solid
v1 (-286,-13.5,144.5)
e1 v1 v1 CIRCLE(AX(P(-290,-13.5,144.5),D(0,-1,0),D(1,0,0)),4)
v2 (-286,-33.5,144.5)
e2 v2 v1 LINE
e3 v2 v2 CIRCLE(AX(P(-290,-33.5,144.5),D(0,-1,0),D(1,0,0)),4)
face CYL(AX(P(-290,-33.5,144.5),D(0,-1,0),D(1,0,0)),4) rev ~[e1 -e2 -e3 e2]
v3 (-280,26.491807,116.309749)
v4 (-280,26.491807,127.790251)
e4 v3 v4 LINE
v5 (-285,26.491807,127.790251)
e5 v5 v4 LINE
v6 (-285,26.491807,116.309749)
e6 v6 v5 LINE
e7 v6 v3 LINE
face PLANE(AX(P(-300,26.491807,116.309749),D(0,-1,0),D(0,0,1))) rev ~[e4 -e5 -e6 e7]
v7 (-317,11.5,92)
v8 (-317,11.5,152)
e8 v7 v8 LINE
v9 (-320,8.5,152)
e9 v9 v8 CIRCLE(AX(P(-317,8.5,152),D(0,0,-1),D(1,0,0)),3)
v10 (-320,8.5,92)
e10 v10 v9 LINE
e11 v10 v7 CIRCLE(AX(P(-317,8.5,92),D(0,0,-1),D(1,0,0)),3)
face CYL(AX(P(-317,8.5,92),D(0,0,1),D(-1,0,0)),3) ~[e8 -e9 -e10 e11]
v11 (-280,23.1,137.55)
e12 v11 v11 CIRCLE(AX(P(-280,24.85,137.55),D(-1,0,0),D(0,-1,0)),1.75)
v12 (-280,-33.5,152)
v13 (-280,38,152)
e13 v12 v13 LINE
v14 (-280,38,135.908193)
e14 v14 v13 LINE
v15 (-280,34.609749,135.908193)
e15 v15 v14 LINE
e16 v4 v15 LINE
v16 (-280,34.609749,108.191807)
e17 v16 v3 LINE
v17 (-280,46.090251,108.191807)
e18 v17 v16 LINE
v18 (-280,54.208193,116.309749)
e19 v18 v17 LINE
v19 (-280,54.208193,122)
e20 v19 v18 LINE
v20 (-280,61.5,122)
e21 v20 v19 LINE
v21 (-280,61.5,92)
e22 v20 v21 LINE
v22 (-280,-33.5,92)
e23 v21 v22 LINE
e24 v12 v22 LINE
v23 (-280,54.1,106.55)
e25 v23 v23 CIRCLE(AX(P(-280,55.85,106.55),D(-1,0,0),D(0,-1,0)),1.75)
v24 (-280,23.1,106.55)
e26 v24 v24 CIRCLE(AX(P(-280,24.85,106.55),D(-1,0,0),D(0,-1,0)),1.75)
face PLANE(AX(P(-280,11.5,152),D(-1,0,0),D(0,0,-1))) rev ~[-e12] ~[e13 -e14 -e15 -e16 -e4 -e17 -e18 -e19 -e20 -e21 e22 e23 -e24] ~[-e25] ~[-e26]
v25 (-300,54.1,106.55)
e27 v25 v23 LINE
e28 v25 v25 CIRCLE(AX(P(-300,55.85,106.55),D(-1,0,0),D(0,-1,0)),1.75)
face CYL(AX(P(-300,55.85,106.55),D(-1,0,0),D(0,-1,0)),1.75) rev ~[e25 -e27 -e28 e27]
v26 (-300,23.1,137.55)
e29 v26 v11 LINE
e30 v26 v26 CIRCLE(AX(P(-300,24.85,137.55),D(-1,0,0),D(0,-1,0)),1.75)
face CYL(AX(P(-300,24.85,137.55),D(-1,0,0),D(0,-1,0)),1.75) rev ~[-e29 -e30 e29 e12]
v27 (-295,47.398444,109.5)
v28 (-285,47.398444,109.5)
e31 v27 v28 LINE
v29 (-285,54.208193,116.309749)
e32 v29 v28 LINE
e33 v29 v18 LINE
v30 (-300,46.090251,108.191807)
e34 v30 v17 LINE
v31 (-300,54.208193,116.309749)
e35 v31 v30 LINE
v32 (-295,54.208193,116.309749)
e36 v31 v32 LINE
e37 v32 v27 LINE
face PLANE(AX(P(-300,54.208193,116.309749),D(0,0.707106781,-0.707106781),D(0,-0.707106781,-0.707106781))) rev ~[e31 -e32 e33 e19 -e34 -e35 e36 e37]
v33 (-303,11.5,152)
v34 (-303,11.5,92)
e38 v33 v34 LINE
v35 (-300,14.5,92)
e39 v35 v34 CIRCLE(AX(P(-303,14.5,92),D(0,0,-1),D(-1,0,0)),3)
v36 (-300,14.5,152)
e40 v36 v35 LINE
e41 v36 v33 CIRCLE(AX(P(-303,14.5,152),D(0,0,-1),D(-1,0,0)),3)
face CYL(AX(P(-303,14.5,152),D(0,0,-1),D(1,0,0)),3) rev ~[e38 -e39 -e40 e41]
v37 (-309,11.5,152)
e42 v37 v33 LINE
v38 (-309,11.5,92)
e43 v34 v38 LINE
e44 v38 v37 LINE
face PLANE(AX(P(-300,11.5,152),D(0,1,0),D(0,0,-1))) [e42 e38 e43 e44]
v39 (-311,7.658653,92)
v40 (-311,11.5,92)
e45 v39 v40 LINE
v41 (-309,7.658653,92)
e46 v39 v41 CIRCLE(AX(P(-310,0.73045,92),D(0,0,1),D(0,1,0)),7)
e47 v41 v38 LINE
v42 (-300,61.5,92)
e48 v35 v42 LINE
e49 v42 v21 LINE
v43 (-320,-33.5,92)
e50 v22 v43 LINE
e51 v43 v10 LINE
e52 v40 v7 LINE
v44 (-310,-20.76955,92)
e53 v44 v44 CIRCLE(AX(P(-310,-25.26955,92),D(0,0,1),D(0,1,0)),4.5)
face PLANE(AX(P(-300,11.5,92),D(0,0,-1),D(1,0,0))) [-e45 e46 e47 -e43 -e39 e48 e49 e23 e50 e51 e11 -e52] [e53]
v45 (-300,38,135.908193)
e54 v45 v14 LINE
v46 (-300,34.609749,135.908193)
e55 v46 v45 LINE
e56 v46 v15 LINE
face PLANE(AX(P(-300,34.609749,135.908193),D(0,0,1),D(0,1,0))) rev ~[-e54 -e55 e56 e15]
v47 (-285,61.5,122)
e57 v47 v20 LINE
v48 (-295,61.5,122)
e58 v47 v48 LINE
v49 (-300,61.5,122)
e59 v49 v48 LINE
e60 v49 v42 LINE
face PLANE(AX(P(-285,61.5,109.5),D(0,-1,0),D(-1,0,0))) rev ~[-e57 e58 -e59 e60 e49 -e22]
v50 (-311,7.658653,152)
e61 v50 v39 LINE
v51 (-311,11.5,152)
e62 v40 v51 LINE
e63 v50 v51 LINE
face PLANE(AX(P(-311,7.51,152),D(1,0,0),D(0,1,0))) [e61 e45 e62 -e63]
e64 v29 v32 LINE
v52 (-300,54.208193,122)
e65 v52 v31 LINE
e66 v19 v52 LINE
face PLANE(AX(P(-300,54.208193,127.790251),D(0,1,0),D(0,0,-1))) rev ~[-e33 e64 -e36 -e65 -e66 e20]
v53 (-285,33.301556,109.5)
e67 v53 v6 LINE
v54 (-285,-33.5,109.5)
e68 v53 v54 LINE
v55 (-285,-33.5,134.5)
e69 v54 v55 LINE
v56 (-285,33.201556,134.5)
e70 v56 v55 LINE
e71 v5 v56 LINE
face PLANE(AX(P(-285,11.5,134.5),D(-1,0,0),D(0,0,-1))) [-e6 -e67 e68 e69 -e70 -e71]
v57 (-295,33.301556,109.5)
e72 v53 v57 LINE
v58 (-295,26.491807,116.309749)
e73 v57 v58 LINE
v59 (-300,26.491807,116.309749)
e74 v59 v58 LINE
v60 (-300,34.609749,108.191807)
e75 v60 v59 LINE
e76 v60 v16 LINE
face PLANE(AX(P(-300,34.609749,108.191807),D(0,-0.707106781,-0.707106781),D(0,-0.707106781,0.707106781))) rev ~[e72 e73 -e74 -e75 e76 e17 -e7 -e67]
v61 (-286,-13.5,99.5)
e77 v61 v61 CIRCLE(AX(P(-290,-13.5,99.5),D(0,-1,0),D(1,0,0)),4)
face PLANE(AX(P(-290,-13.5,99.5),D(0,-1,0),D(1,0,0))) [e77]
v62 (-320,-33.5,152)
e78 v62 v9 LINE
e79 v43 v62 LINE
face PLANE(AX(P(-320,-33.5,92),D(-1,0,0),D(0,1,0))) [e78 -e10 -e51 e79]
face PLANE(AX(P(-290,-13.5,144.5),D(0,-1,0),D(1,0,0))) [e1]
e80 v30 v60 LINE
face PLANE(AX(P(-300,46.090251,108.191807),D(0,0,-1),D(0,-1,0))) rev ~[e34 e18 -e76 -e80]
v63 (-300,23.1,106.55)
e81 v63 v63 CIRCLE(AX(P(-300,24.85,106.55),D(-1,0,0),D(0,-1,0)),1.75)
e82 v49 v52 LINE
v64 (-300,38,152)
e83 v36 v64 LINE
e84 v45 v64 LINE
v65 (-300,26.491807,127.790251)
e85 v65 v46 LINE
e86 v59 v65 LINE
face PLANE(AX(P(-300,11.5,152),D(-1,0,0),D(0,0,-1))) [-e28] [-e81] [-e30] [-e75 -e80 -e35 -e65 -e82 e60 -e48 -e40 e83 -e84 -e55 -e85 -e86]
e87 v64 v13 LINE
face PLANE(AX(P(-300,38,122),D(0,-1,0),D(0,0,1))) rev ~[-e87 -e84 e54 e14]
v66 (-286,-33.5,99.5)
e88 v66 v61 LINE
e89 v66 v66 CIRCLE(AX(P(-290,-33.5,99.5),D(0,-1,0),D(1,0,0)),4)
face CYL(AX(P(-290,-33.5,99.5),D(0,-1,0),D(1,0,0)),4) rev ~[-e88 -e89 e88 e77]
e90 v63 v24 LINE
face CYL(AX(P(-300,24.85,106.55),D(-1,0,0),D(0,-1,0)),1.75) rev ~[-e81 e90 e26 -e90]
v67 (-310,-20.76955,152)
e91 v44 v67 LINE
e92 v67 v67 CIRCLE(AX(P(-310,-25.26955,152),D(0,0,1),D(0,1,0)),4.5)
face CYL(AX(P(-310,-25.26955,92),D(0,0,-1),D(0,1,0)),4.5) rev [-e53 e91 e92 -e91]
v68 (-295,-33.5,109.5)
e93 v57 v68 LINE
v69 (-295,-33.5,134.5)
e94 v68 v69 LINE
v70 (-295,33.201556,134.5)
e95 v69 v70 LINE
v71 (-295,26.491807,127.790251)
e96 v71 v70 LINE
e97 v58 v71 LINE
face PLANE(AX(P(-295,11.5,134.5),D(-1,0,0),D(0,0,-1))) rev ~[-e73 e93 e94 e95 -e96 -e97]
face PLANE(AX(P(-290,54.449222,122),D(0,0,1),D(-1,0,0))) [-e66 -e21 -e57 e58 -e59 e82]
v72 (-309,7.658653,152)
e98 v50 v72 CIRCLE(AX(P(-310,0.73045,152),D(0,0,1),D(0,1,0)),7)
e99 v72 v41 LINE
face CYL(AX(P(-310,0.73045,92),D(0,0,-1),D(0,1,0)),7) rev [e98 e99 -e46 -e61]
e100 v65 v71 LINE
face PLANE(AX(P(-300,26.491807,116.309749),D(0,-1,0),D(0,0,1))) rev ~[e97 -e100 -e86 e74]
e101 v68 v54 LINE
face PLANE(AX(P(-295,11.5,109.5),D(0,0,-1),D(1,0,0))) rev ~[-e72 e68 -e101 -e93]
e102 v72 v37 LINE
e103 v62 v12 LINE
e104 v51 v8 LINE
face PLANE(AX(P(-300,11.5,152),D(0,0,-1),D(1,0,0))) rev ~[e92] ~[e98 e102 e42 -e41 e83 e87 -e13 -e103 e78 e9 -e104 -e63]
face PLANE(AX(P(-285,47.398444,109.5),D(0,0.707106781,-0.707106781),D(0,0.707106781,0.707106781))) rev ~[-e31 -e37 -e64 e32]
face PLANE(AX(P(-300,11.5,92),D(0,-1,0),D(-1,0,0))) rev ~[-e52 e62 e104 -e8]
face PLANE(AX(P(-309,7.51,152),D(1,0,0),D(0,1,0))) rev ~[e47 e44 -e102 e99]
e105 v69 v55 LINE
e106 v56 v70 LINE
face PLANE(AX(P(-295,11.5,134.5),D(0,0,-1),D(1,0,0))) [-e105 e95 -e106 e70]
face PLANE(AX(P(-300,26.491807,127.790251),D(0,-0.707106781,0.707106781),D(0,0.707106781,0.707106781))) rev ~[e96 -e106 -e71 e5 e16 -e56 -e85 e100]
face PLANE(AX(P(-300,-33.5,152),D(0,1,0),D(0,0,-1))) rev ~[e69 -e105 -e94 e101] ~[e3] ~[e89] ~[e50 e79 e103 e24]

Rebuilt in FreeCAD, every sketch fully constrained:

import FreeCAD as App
import Part
import Sketcher
from FreeCAD import Vector
Q = App.Units.Quantity


def edges_at(feature, points):
    """Names of the edges that pass closest to the given points."""
    edges = feature.Shape.Edges
    near = lambda p: min(range(len(edges)), key=lambda i: edges[i].distToShape(Part.Vertex(*p))[0])
    return sorted({f"Edge{near(p) + 1}" for p in points})


def add_polygon(sketch, points):
    """Adds a closed chain of lines whose ends are joined by coincident constraints."""
    first, n = sketch.GeometryCount, len(points)
    for a, b in zip(points, points[1:] + points[:1]):
        sketch.addGeometry(Part.LineSegment(App.Vector(*a, 0), App.Vector(*b, 0)), False)
    for i in range(n):
        sketch.addConstraint(Sketcher.Constraint("Coincident", first + i, 2, first + (i + 1) % n, 1))

doc = App.newDocument("Part")
params = doc.addObject("Spreadsheet::Sheet", "Params")
for row, (alias, value) in enumerate([
    ("sketch1_diameter", "9 mm"),
    ("sketch1_diameter2", "14 mm"),
    ("sketch1_width", "45 mm"),
    ("sketch1_height", "20 mm"),
    ("pad1_length", "60 mm"),
    ("sketch2_width", "4 mm"),
    ("sketch2_height", "2 mm"),
    ("sketch3_width", "45 mm"),
    ("sketch3_height", "60 mm"),
    ("pad2_length", "20 mm"),
    ("sketch4_width", "10 mm"),
    ("sketch4_height", "25 mm"),
    ("pocket2_length", "47 mm"),
    ("sketch5_diameter", "8 mm"),
    ("pocket3_length", "20 mm"),
    ("sketch6_width", "20 mm"),
    ("sketch6_width2", "10 mm"),
    ("sketch6_height", "60 mm"),
    ("sketch6_height2", "25 mm"),
    ("pad3_length", "50 mm"),
    ("fillet_radius", "3 mm"),
    ("fillet2_radius", "3 mm"),
    ("sketch7_diameter", "3.5 mm"),
    ("sketch8_height", "30 mm"),
    ("sketch8_width", "23.5 mm"),
    ("sketch9_height", "10 mm"),
    ("pad4_length", "12.5 mm"),
    ("sketch10_height", "12.5 mm"),
], start=1):
    params.set(f"A{row}", alias)
    params.set(f"B{row}", "=" + value)
    params.setAlias(f"B{row}", alias)

body = doc.addObject("PartDesign::Body", "Body")

sketch1 = body.newObject("Sketcher::SketchObject", "Sketch")
sketch1.AttachmentSupport = (doc.getObject("XY_Plane"), [""])
sketch1.MapMode = "FlatFace"
add_polygon(sketch1, [(-22.5, 10), (-22.5, -10), (22.5, -10), (22.5, 10)])
sketch1.addGeometry(Part.Circle(Vector(-14.26955, 0, 0), Vector(0, 0, 1), 4.5), False)
sketch1.addGeometry(Part.Circle(Vector(11.73045, 0, 0), Vector(0, 0, 1), 7), False)
sketch1.addConstraint(Sketcher.Constraint("Vertical", 0))
sketch1.addConstraint(Sketcher.Constraint("Horizontal", 1))
sketch1.addConstraint(Sketcher.Constraint("Vertical", 2))
sketch1.addConstraint(Sketcher.Constraint("Horizontal", 3))
sketch1.addConstraint(Sketcher.Constraint("Symmetric", 0, 2, 2, 2, -1, 1))
sketch1.addConstraint(Sketcher.Constraint("PointOnObject", 4, 3, -1))
sketch1.addConstraint(Sketcher.Constraint("PointOnObject", 5, 3, -1))
sketch1.addConstraint(Sketcher.Constraint("Diameter", 4, 9.0))
sketch1.addConstraint(Sketcher.Constraint("Diameter", 5, 14.0))
sketch1.addConstraint(Sketcher.Constraint("DistanceX", 1, 1, 1, 2, 45.0))
sketch1.addConstraint(Sketcher.Constraint("DistanceY", 0, 2, 0, 1, 20.0))
sketch1.addConstraint(Sketcher.Constraint("DistanceX", 4, 3, 5, 3, 26.0))
sketch1.addConstraint(Sketcher.Constraint("DistanceX", 4, 3, -1, 1, 14.26955))
sketch1.setExpression("Constraints[11]", "Params.sketch1_diameter")
sketch1.setExpression("Constraints[12]", "Params.sketch1_diameter2")
sketch1.setExpression("Constraints[13]", "Params.sketch1_width")
sketch1.setExpression("Constraints[14]", "Params.sketch1_height")
pad1 = body.newObject("PartDesign::Pad", "Pad")
pad1.Profile = sketch1
pad1.setExpression("Length", "Params.pad1_length")

sketch2 = body.newObject("Sketcher::SketchObject", "Sketch001")
sketch2.AttachmentSupport = (doc.getObject("XY_Plane"), [""])
sketch2.MapMode = "FlatFace"
sketch2.AttachmentOffset = App.Placement(Vector(0, 0, 60), App.Rotation())
add_polygon(sketch2, [(18.51, 1), (18.51, -1), (22.51, -1), (22.51, 1)])
sketch2.addConstraint(Sketcher.Constraint("Vertical", 0))
sketch2.addConstraint(Sketcher.Constraint("Horizontal", 1))
sketch2.addConstraint(Sketcher.Constraint("Vertical", 2))
sketch2.addConstraint(Sketcher.Constraint("Horizontal", 3))
sketch2.addConstraint(Sketcher.Constraint("DistanceX", 1, 1, 1, 2, 4.0))
sketch2.addConstraint(Sketcher.Constraint("DistanceY", 0, 2, 0, 1, 2.0))
sketch2.addConstraint(Sketcher.Constraint("DistanceY", 0, 2, -1, 1, 1.0))
sketch2.addConstraint(Sketcher.Constraint("DistanceX", -1, 1, 0, 2, 18.51))
sketch2.setExpression("Constraints[8]", "Params.sketch2_width")
sketch2.setExpression("Constraints[9]", "Params.sketch2_height")
pocket1 = body.newObject("PartDesign::Pocket", "Pocket")
pocket1.Profile = sketch2
pocket1.Type = "ThroughAll"

sketch3 = body.newObject("Sketcher::SketchObject", "Sketch002")
sketch3.AttachmentSupport = (doc.getObject("XZ_Plane"), [""])
sketch3.MapMode = "FlatFace"
sketch3.AttachmentOffset = App.Placement(Vector(0, 0, 10), App.Rotation())
add_polygon(sketch3, [(22.5, 0), (22.5, 60), (-22.5, 60), (-22.5, 0)])
sketch3.addConstraint(Sketcher.Constraint("Vertical", 0))
sketch3.addConstraint(Sketcher.Constraint("Horizontal", 1))
sketch3.addConstraint(Sketcher.Constraint("Vertical", 2))
sketch3.addConstraint(Sketcher.Constraint("Horizontal", 3))
sketch3.addConstraint(Sketcher.Constraint("Symmetric", 2, 2, 3, 2, -1, 1))
sketch3.addConstraint(Sketcher.Constraint("DistanceX", 1, 2, 1, 1, 45.0))
sketch3.addConstraint(Sketcher.Constraint("DistanceY", 0, 1, 0, 2, 60.0))
sketch3.setExpression("Constraints[9]", "Params.sketch3_width")
sketch3.setExpression("Constraints[10]", "Params.sketch3_height")
pad2 = body.newObject("PartDesign::Pad", "Pad001")
pad2.Profile = sketch3
pad2.setExpression("Length", "Params.pad2_length")

sketch4 = body.newObject("Sketcher::SketchObject", "Sketch003")
sketch4.AttachmentSupport = (doc.getObject("YZ_Plane"), [""])
sketch4.MapMode = "FlatFace"
sketch4.AttachmentOffset = App.Placement(Vector(0, 0, -22.5), App.Rotation())
add_polygon(sketch4, [(-15, 42.5), (-15, 17.5), (-25, 17.5), (-25, 42.5)])
sketch4.addConstraint(Sketcher.Constraint("Vertical", 0))
sketch4.addConstraint(Sketcher.Constraint("Horizontal", 1))
sketch4.addConstraint(Sketcher.Constraint("Vertical", 2))
sketch4.addConstraint(Sketcher.Constraint("Horizontal", 3))
sketch4.addConstraint(Sketcher.Constraint("DistanceX", 1, 2, 1, 1, 10.0))
sketch4.addConstraint(Sketcher.Constraint("DistanceY", 0, 2, 0, 1, 25.0))
sketch4.addConstraint(Sketcher.Constraint("DistanceX", 0, 2, -1, 1, 15.0))
sketch4.addConstraint(Sketcher.Constraint("DistanceY", -1, 1, 0, 2, 17.5))
sketch4.setExpression("Constraints[8]", "Params.sketch4_width")
sketch4.setExpression("Constraints[9]", "Params.sketch4_height")
pocket2 = body.newObject("PartDesign::Pocket", "Pocket001")
pocket2.Profile = sketch4
pocket2.setExpression("Length", "Params.pocket2_length")
pocket2.Reversed = True

sketch5 = body.newObject("Sketcher::SketchObject", "Sketch004")
sketch5.AttachmentSupport = (doc.getObject("YZ_Plane"), [""])
sketch5.MapMode = "FlatFace"
sketch5.AttachmentOffset = App.Placement(Vector(0, 0, -22.5), App.Rotation())
sketch5.addGeometry(Part.Circle(Vector(-20, 52.5, 0), Vector(0, 0, 1), 4), False)
sketch5.addGeometry(Part.Circle(Vector(-20, 7.5, 0), Vector(0, 0, 1), 4), False)
sketch5.addConstraint(Sketcher.Constraint("Equal", 0, 1))
sketch5.addConstraint(Sketcher.Constraint("Vertical", 0, 3, 1, 3))
sketch5.addConstraint(Sketcher.Constraint("Diameter", 0, 8.0))
sketch5.addConstraint(Sketcher.Constraint("DistanceX", 0, 3, -1, 1, 20.0))
sketch5.addConstraint(Sketcher.Constraint("DistanceY", 1, 3, 0, 3, 45.0))
sketch5.addConstraint(Sketcher.Constraint("DistanceY", -1, 1, 0, 3, 52.5))
sketch5.setExpression("Constraints[2]", "Params.sketch5_diameter")
pocket3 = body.newObject("PartDesign::Pocket", "Pocket002")
pocket3.Profile = sketch5
pocket3.setExpression("Length", "Params.pocket3_length")
pocket3.Reversed = True

sketch6 = body.newObject("Sketcher::SketchObject", "Sketch005")
sketch6.AttachmentSupport = (doc.getObject("YZ_Plane"), [""])
sketch6.MapMode = "FlatFace"
sketch6.AttachmentOffset = App.Placement(Vector(0, 0, 22.5), App.Rotation())
add_polygon(sketch6, [(-10, 0), (-10, 60), (-30, 60), (-30, 0)])
add_polygon(sketch6, [(-25, 42.5), (-15, 42.5), (-15, 17.5), (-25, 17.5)])
sketch6.addConstraint(Sketcher.Constraint("Vertical", 0))
sketch6.addConstraint(Sketcher.Constraint("Horizontal", 1))
sketch6.addConstraint(Sketcher.Constraint("Vertical", 2))
sketch6.addConstraint(Sketcher.Constraint("Horizontal", 3))
sketch6.addConstraint(Sketcher.Constraint("Horizontal", 4))
sketch6.addConstraint(Sketcher.Constraint("Vertical", 5))
sketch6.addConstraint(Sketcher.Constraint("Horizontal", 6))
sketch6.addConstraint(Sketcher.Constraint("Vertical", 7))
sketch6.addConstraint(Sketcher.Constraint("PointOnObject", 2, 2, -1))
sketch6.addConstraint(Sketcher.Constraint("DistanceX", 1, 2, 1, 1, 20.0))
sketch6.addConstraint(Sketcher.Constraint("DistanceX", 4, 1, 4, 2, 10.0))
sketch6.addConstraint(Sketcher.Constraint("DistanceY", 0, 1, 0, 2, 60.0))
sketch6.addConstraint(Sketcher.Constraint("DistanceY", 5, 2, 5, 1, 25.0))
sketch6.addConstraint(Sketcher.Constraint("DistanceX", 0, 2, -1, 1, 10.0))
sketch6.addConstraint(Sketcher.Constraint("DistanceX", 4, 2, -1, 1, 15.0))
sketch6.addConstraint(Sketcher.Constraint("DistanceY", -1, 1, 4, 2, 42.5))
sketch6.setExpression("Constraints[17]", "Params.sketch6_width")
sketch6.setExpression("Constraints[18]", "Params.sketch6_width2")
sketch6.setExpression("Constraints[19]", "Params.sketch6_height")
sketch6.setExpression("Constraints[20]", "Params.sketch6_height2")
pad3 = body.newObject("PartDesign::Pad", "Pad002")
pad3.Profile = sketch6
pad3.setExpression("Length", "Params.pad3_length")
doc.recompute()

fillet = body.newObject("PartDesign::Fillet", "Fillet")
fillet.Base = (pad3, edges_at(pad3, [(22.5, -10, 30)]))
fillet.setExpression("Radius", "Params.fillet_radius")
doc.recompute()

fillet2 = body.newObject("PartDesign::Fillet", "Fillet001")
fillet2.Base = (fillet, edges_at(fillet, [(22.5, 10, 30)]))
fillet2.setExpression("Radius", "Params.fillet2_radius")

sketch7 = body.newObject("Sketcher::SketchObject", "Sketch006")
sketch7.AttachmentSupport = (doc.getObject("XZ_Plane"), [""])
sketch7.MapMode = "FlatFace"
sketch7.AttachmentOffset = App.Placement(Vector(0, 0, 10), App.Rotation())
sketch7.addGeometry(Part.Circle(Vector(35.85, 45.55, 0), Vector(0, 0, 1), 1.75), False)
sketch7.addGeometry(Part.Circle(Vector(66.85, 45.55, 0), Vector(0, 0, 1), 1.75), False)
sketch7.addGeometry(Part.Circle(Vector(66.85, 14.55, 0), Vector(0, 0, 1), 1.75), False)
sketch7.addGeometry(Part.Circle(Vector(35.85, 14.55, 0), Vector(0, 0, 1), 1.75), False)
add_polygon(sketch7, [(37.491807, 35.790251), (45.609749, 43.908193), (57.090251, 43.908193), (65.208193, 35.790251), (65.208193, 24.309749), (57.090251, 16.191807), (45.609749, 16.191807), (37.491807, 24.309749)])
sketch7.addConstraint(Sketcher.Constraint("Horizontal", 5))
sketch7.addConstraint(Sketcher.Constraint("Vertical", 7))
sketch7.addConstraint(Sketcher.Constraint("Horizontal", 9))
sketch7.addConstraint(Sketcher.Constraint("Vertical", 11))
sketch7.addConstraint(Sketcher.Constraint("Equal", 0, 1))
sketch7.addConstraint(Sketcher.Constraint("Equal", 1, 2))
sketch7.addConstraint(Sketcher.Constraint("Equal", 2, 3))
sketch7.addConstraint(Sketcher.Constraint("Perpendicular", 4, 6))
sketch7.addConstraint(Sketcher.Constraint("Perpendicular", 6, 8))
sketch7.addConstraint(Sketcher.Constraint("Perpendicular", 8, 10))
sketch7.addConstraint(Sketcher.Constraint("Horizontal", 0, 3, 1, 3))
sketch7.addConstraint(Sketcher.Constraint("Horizontal", 2, 3, 3, 3))
sketch7.addConstraint(Sketcher.Constraint("Horizontal", 7, 2, 10, 2))
sketch7.addConstraint(Sketcher.Constraint("Horizontal", 6, 2, 11, 2))
sketch7.addConstraint(Sketcher.Constraint("Vertical", 1, 3, 2, 3))
sketch7.addConstraint(Sketcher.Constraint("Vertical", 0, 3, 3, 3))
sketch7.addConstraint(Sketcher.Constraint("Vertical", 5, 2, 8, 2))
sketch7.addConstraint(Sketcher.Constraint("Vertical", 4, 2, 9, 2))
sketch7.addConstraint(Sketcher.Constraint("Equal", 9, 7))
sketch7.addConstraint(Sketcher.Constraint("Diameter", 0, 3.5))
sketch7.addConstraint(Sketcher.Constraint("DistanceX", 0, 3, 1, 3, 31.0))
sketch7.addConstraint(Sketcher.Constraint("DistanceY", 2, 3, 1, 3, 31.0))
sketch7.addConstraint(Sketcher.Constraint("DistanceX", -1, 1, 0, 3, 35.85))
sketch7.addConstraint(Sketcher.Constraint("DistanceY", -1, 1, 0, 3, 45.55))
sketch7.addConstraint(Sketcher.Constraint("DistanceX", 5, 1, 5, 2, 11.480503))
sketch7.addConstraint(Sketcher.Constraint("DistanceX", -1, 1, 4, 2, 45.609749))
sketch7.addConstraint(Sketcher.Constraint("DistanceY", -1, 1, 6, 2, 35.790251))
sketch7.addConstraint(Sketcher.Constraint("DistanceX", 5, 2, 6, 2, 8.117942))
sketch7.setExpression("Constraints[27]", "Params.sketch7_diameter")
pocket4 = body.newObject("PartDesign::Pocket", "Pocket003")
pocket4.Profile = sketch7
pocket4.Type = "ThroughAll"
pocket4.Reversed = True

sketch8 = body.newObject("Sketcher::SketchObject", "Sketch007")
sketch8.AttachmentSupport = (doc.getObject("XZ_Plane"), [""])
sketch8.MapMode = "FlatFace"
sketch8.AttachmentOffset = App.Placement(Vector(0, 0, 10), App.Rotation())
add_polygon(sketch8, [(72.5, 60), (72.5, 30), (49, 30), (49, 60)])
sketch8.addConstraint(Sketcher.Constraint("Vertical", 0))
sketch8.addConstraint(Sketcher.Constraint("Horizontal", 1))
sketch8.addConstraint(Sketcher.Constraint("Vertical", 2))
sketch8.addConstraint(Sketcher.Constraint("Horizontal", 3))
sketch8.addConstraint(Sketcher.Constraint("DistanceY", 0, 2, 0, 1, 30.0))
sketch8.addConstraint(Sketcher.Constraint("DistanceX", 1, 2, 1, 1, 23.5))
sketch8.addConstraint(Sketcher.Constraint("DistanceY", -1, 1, 0, 2, 30.0))
sketch8.addConstraint(Sketcher.Constraint("DistanceX", -1, 1, 1, 2, 49.0))
sketch8.setExpression("Constraints[8]", "Params.sketch8_height")
sketch8.setExpression("Constraints[9]", "Params.sketch8_width")
pocket5 = body.newObject("PartDesign::Pocket", "Pocket004")
pocket5.Profile = sketch8
pocket5.Type = "ThroughAll"
pocket5.Reversed = True

sketch9 = body.newObject("Sketcher::SketchObject", "Sketch008")
sketch9.AttachmentSupport = (doc.getObject("XY_Plane"), [""])
sketch9.MapMode = "FlatFace"
sketch9.AttachmentOffset = App.Placement(Vector(0, 0, 17.5), App.Rotation())
add_polygon(sketch9, [(58.398444, -25), (72.5, -25), (72.5, -15), (58.398444, -15)])
sketch9.addConstraint(Sketcher.Constraint("Horizontal", 0))
sketch9.addConstraint(Sketcher.Constraint("Vertical", 1))
sketch9.addConstraint(Sketcher.Constraint("Horizontal", 2))
sketch9.addConstraint(Sketcher.Constraint("Vertical", 3))
sketch9.addConstraint(Sketcher.Constraint("DistanceY", 1, 1, 1, 2, 10.0))
sketch9.addConstraint(Sketcher.Constraint("DistanceY", 0, 2, -1, 1, 25.0))
sketch9.addConstraint(Sketcher.Constraint("DistanceX", -1, 1, 0, 2, 72.5))
sketch9.addConstraint(Sketcher.Constraint("DistanceX", 0, 1, 0, 2, 14.101556))
sketch9.setExpression("Constraints[8]", "Params.sketch9_height")
pad4 = body.newObject("PartDesign::Pad", "Pad003")
pad4.Profile = sketch9
pad4.setExpression("Length", "Params.pad4_length")

sketch10 = body.newObject("Sketcher::SketchObject", "Sketch009")
sketch10.AttachmentSupport = (doc.getObject("XZ_Plane"), [""])
sketch10.MapMode = "FlatFace"
sketch10.AttachmentOffset = App.Placement(Vector(0, 0, 25), App.Rotation())
add_polygon(sketch10, [(58.398444, 17.5), (65.208193, 24.309749), (65.208193, 30), (58.398444, 30)])
sketch10.addConstraint(Sketcher.Constraint("Vertical", 1))
sketch10.addConstraint(Sketcher.Constraint("Horizontal", 2))
sketch10.addConstraint(Sketcher.Constraint("Vertical", 3))
sketch10.addConstraint(Sketcher.Constraint("Angle", 0, Q("45 deg")))
sketch10.addConstraint(Sketcher.Constraint("DistanceY", 3, 2, 3, 1, 12.5))
sketch10.addConstraint(Sketcher.Constraint("DistanceY", -1, 1, 1, 2, 30.0))
sketch10.addConstraint(Sketcher.Constraint("DistanceX", 2, 2, 2, 1, 6.809749))
sketch10.addConstraint(Sketcher.Constraint("DistanceX", -1, 1, 0, 2, 65.208193))
sketch10.setExpression("Constraints[8]", "Params.sketch10_height")
pocket6 = body.newObject("PartDesign::Pocket", "Pocket005")
pocket6.Profile = sketch10
pocket6.Type = "ThroughAll"
body2 = doc.addObject("PartDesign::Body", "Body001")
doc.recompute()

body.Placement = App.Placement(Vector(-73, 0, 0), App.Rotation(Vector(0, 0, 1), 180))
boolean = body2.newObject("PartDesign::Boolean", "Boolean")
boolean.Type = "Fuse"
boolean.addObjects([body])
body3 = doc.addObject("PartDesign::Body", "Body002")
doc.recompute()

body2.Placement = App.Placement(Vector(-310, -84, 92), App.Rotation(Vector(0, 0, -1), 90))
boolean2 = body3.newObject("PartDesign::Boolean", "Boolean001")
boolean2.Type = "Fuse"
boolean2.addObjects([body2])

doc.recompute()
